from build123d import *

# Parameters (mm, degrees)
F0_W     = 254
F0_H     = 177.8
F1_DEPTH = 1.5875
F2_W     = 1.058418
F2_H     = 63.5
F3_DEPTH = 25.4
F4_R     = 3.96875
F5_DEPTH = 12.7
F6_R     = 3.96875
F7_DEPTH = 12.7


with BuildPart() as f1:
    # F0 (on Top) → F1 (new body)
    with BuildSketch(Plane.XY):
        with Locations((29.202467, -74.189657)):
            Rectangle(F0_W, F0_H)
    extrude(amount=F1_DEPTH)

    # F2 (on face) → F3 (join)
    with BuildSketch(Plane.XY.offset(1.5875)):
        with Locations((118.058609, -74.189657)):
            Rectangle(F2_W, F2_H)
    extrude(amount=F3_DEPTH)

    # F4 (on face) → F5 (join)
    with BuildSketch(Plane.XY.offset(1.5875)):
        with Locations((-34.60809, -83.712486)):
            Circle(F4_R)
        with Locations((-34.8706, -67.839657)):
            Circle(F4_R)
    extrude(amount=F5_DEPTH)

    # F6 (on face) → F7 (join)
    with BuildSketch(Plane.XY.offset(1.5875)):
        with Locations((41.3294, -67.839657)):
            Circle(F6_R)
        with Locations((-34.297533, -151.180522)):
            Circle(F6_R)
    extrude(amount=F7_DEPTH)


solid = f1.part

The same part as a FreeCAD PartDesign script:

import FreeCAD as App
import Part
import Sketcher
Q = App.Units.Quantity


def add_polygon(sketch, points):
    """Adds a closed chain of lines whose ends are joined by coincident constraints."""
    first, n = sketch.GeometryCount, len(points)
    for a, b in zip(points, points[1:] + points[:1]):
        sketch.addGeometry(Part.LineSegment(App.Vector(*a, 0), App.Vector(*b, 0)), False)
    for i in range(n):
        sketch.addConstraint(Sketcher.Constraint("Coincident", first + i, 2, first + (i + 1) % n, 1))

doc = App.newDocument("Part")
body = doc.addObject("PartDesign::Body", "Body")

# Sketch on XY plane
sketch1 = body.newObject("Sketcher::SketchObject", "Sketch")
sketch1.AttachmentSupport = (doc.getObject("XY_Plane"), [""])
sketch1.MapMode = "FlatFace"
add_polygon(sketch1, [(-98, 15), (-98, -163), (156, -163), (156, 15)])  # lines 0-3
sketch1.addConstraint([
    Sketcher.Constraint("Vertical", 0),
    Sketcher.Constraint("Horizontal", 1),
    Sketcher.Constraint("Vertical", 2),
    Sketcher.Constraint("Horizontal", 3),
    Sketcher.Constraint("DistanceX", 1, 1, 1, 2, Q("10 in")),
    Sketcher.Constraint("DistanceY", 0, 2, 0, 1, Q("7 in")),
    Sketcher.Constraint("DistanceX", 0, 2, -1, 1, 97.797533),
    Sketcher.Constraint("DistanceY", 0, 2, -1, 1, 163.089657),
])
pad1 = body.newObject("PartDesign::Pad", "Pad")
pad1.Profile = sketch1
pad1.Length = Q("0.0625 in")

# Sketch on XY plane
sketch2 = body.newObject("Sketcher::SketchObject", "Sketch001")
sketch2.AttachmentSupport = (doc.getObject("XY_Plane"), [""])
sketch2.MapMode = "FlatFace"
sketch2.AttachmentOffset = App.Placement(App.Vector(0, 0, 0.0625 * 25.4), App.Rotation())
add_polygon(sketch2, [(117.5, -42.4), (117.5, -105.9), (118.6, -105.9), (118.6, -42.4)])  # lines 0-3
sketch2.addConstraint([
    Sketcher.Constraint("Vertical", 0),
    Sketcher.Constraint("Horizontal", 1),
    Sketcher.Constraint("Vertical", 2),
    Sketcher.Constraint("Horizontal", 3),
    Sketcher.Constraint("DistanceY", 0, 2, 0, 1, Q("2.5 in")),
    Sketcher.Constraint("DistanceX", 1, 1, 1, 2, 1.058418),
    Sketcher.Constraint("DistanceX", -1, 1, 0, 2, 117.5294),
    Sketcher.Constraint("DistanceY", 0, 2, -1, 1, 105.939657),
])
pad2 = body.newObject("PartDesign::Pad", "Pad001")
pad2.Profile = sketch2
pad2.Length = Q("1 in")

# Sketch on XY plane
sketch3 = body.newObject("Sketcher::SketchObject", "Sketch002")
sketch3.AttachmentSupport = (doc.getObject("XY_Plane"), [""])
sketch3.MapMode = "FlatFace"
sketch3.AttachmentOffset = App.Placement(App.Vector(0, 0, 0.0625 * 25.4), App.Rotation())
sketch3.addGeometry([
    Part.Circle(App.Vector(-34.6, -83.7, 0), App.Vector(0, 0, 1), 4),
    Part.Circle(App.Vector(-34.9, -67.8, 0), App.Vector(0, 0, 1), 4),
], False)
sketch3.addConstraint([
    Sketcher.Constraint("Equal", 0, 1),
    Sketcher.Constraint("Diameter", 0, Q("0.3125 in")),
    Sketcher.Constraint("DistanceX", 1, 3, -1, 1, 34.8706),
    Sketcher.Constraint("DistanceX", 0, 3, -1, 1, 34.60809),
    Sketcher.Constraint("DistanceY", 0, 3, 1, 3, 15.872829),
    Sketcher.Constraint("DistanceY", 0, 3, -1, 1, 83.712486),
])
pad3 = body.newObject("PartDesign::Pad", "Pad002")
pad3.Profile = sketch3
pad3.Length = Q("0.5 in")

# Sketch on XY plane
sketch4 = body.newObject("Sketcher::SketchObject", "Sketch003")
sketch4.AttachmentSupport = (doc.getObject("XY_Plane"), [""])
sketch4.MapMode = "FlatFace"
sketch4.AttachmentOffset = App.Placement(App.Vector(0, 0, 0.0625 * 25.4), App.Rotation())
sketch4.addGeometry([
    Part.Circle(App.Vector(41.3, -67.8, 0), App.Vector(0, 0, 1), 4),
    Part.Circle(App.Vector(-34.3, -151.2, 0), App.Vector(0, 0, 1), 4),
], False)
sketch4.addConstraint([
    Sketcher.Constraint("Equal", 0, 1),
    Sketcher.Constraint("Diameter", 0, Q("0.3125 in")),
    Sketcher.Constraint("DistanceX", -1, 1, 0, 3, 41.3294),
    Sketcher.Constraint("DistanceY", 1, 3, -1, 1, 151.180522),
    Sketcher.Constraint("DistanceY", 0, 3, -1, 1, 67.839657),
    Sketcher.Constraint("DistanceX", 1, 3, -1, 1, 34.297533),
])
pad4 = body.newObject("PartDesign::Pad", "Pad003")
pad4.Profile = sketch4
pad4.Length = Q("0.5 in")

doc.recompute()
